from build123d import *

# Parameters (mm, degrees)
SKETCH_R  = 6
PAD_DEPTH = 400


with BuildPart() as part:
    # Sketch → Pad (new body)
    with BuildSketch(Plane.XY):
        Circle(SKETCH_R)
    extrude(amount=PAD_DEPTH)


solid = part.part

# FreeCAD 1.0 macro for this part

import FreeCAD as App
import Part
import Sketcher

V = App.Vector

doc = App.newDocument("Part")
body = doc.addObject("PartDesign::Body", "Body")

# Sketch on XY plane
sketch1 = body.newObject("Sketcher::SketchObject", "Sketch")
sketch1.AttachmentSupport = (doc.getObject("XY_Plane"), [""])
sketch1.MapMode = "FlatFace"
sketch1.addGeometry(Part.Circle(V(0, 0, 0), V(0, 0, 1), 6), False)
sketch1.addConstraint(Sketcher.Constraint("Coincident", 0, 3, -1, 1))
sketch1.addConstraint(Sketcher.Constraint("Diameter", 0, 12.0))
pad1 = body.newObject("PartDesign::Pad", "Pad")
pad1.Profile = sketch1
pad1.Length = 400

doc.recompute()
